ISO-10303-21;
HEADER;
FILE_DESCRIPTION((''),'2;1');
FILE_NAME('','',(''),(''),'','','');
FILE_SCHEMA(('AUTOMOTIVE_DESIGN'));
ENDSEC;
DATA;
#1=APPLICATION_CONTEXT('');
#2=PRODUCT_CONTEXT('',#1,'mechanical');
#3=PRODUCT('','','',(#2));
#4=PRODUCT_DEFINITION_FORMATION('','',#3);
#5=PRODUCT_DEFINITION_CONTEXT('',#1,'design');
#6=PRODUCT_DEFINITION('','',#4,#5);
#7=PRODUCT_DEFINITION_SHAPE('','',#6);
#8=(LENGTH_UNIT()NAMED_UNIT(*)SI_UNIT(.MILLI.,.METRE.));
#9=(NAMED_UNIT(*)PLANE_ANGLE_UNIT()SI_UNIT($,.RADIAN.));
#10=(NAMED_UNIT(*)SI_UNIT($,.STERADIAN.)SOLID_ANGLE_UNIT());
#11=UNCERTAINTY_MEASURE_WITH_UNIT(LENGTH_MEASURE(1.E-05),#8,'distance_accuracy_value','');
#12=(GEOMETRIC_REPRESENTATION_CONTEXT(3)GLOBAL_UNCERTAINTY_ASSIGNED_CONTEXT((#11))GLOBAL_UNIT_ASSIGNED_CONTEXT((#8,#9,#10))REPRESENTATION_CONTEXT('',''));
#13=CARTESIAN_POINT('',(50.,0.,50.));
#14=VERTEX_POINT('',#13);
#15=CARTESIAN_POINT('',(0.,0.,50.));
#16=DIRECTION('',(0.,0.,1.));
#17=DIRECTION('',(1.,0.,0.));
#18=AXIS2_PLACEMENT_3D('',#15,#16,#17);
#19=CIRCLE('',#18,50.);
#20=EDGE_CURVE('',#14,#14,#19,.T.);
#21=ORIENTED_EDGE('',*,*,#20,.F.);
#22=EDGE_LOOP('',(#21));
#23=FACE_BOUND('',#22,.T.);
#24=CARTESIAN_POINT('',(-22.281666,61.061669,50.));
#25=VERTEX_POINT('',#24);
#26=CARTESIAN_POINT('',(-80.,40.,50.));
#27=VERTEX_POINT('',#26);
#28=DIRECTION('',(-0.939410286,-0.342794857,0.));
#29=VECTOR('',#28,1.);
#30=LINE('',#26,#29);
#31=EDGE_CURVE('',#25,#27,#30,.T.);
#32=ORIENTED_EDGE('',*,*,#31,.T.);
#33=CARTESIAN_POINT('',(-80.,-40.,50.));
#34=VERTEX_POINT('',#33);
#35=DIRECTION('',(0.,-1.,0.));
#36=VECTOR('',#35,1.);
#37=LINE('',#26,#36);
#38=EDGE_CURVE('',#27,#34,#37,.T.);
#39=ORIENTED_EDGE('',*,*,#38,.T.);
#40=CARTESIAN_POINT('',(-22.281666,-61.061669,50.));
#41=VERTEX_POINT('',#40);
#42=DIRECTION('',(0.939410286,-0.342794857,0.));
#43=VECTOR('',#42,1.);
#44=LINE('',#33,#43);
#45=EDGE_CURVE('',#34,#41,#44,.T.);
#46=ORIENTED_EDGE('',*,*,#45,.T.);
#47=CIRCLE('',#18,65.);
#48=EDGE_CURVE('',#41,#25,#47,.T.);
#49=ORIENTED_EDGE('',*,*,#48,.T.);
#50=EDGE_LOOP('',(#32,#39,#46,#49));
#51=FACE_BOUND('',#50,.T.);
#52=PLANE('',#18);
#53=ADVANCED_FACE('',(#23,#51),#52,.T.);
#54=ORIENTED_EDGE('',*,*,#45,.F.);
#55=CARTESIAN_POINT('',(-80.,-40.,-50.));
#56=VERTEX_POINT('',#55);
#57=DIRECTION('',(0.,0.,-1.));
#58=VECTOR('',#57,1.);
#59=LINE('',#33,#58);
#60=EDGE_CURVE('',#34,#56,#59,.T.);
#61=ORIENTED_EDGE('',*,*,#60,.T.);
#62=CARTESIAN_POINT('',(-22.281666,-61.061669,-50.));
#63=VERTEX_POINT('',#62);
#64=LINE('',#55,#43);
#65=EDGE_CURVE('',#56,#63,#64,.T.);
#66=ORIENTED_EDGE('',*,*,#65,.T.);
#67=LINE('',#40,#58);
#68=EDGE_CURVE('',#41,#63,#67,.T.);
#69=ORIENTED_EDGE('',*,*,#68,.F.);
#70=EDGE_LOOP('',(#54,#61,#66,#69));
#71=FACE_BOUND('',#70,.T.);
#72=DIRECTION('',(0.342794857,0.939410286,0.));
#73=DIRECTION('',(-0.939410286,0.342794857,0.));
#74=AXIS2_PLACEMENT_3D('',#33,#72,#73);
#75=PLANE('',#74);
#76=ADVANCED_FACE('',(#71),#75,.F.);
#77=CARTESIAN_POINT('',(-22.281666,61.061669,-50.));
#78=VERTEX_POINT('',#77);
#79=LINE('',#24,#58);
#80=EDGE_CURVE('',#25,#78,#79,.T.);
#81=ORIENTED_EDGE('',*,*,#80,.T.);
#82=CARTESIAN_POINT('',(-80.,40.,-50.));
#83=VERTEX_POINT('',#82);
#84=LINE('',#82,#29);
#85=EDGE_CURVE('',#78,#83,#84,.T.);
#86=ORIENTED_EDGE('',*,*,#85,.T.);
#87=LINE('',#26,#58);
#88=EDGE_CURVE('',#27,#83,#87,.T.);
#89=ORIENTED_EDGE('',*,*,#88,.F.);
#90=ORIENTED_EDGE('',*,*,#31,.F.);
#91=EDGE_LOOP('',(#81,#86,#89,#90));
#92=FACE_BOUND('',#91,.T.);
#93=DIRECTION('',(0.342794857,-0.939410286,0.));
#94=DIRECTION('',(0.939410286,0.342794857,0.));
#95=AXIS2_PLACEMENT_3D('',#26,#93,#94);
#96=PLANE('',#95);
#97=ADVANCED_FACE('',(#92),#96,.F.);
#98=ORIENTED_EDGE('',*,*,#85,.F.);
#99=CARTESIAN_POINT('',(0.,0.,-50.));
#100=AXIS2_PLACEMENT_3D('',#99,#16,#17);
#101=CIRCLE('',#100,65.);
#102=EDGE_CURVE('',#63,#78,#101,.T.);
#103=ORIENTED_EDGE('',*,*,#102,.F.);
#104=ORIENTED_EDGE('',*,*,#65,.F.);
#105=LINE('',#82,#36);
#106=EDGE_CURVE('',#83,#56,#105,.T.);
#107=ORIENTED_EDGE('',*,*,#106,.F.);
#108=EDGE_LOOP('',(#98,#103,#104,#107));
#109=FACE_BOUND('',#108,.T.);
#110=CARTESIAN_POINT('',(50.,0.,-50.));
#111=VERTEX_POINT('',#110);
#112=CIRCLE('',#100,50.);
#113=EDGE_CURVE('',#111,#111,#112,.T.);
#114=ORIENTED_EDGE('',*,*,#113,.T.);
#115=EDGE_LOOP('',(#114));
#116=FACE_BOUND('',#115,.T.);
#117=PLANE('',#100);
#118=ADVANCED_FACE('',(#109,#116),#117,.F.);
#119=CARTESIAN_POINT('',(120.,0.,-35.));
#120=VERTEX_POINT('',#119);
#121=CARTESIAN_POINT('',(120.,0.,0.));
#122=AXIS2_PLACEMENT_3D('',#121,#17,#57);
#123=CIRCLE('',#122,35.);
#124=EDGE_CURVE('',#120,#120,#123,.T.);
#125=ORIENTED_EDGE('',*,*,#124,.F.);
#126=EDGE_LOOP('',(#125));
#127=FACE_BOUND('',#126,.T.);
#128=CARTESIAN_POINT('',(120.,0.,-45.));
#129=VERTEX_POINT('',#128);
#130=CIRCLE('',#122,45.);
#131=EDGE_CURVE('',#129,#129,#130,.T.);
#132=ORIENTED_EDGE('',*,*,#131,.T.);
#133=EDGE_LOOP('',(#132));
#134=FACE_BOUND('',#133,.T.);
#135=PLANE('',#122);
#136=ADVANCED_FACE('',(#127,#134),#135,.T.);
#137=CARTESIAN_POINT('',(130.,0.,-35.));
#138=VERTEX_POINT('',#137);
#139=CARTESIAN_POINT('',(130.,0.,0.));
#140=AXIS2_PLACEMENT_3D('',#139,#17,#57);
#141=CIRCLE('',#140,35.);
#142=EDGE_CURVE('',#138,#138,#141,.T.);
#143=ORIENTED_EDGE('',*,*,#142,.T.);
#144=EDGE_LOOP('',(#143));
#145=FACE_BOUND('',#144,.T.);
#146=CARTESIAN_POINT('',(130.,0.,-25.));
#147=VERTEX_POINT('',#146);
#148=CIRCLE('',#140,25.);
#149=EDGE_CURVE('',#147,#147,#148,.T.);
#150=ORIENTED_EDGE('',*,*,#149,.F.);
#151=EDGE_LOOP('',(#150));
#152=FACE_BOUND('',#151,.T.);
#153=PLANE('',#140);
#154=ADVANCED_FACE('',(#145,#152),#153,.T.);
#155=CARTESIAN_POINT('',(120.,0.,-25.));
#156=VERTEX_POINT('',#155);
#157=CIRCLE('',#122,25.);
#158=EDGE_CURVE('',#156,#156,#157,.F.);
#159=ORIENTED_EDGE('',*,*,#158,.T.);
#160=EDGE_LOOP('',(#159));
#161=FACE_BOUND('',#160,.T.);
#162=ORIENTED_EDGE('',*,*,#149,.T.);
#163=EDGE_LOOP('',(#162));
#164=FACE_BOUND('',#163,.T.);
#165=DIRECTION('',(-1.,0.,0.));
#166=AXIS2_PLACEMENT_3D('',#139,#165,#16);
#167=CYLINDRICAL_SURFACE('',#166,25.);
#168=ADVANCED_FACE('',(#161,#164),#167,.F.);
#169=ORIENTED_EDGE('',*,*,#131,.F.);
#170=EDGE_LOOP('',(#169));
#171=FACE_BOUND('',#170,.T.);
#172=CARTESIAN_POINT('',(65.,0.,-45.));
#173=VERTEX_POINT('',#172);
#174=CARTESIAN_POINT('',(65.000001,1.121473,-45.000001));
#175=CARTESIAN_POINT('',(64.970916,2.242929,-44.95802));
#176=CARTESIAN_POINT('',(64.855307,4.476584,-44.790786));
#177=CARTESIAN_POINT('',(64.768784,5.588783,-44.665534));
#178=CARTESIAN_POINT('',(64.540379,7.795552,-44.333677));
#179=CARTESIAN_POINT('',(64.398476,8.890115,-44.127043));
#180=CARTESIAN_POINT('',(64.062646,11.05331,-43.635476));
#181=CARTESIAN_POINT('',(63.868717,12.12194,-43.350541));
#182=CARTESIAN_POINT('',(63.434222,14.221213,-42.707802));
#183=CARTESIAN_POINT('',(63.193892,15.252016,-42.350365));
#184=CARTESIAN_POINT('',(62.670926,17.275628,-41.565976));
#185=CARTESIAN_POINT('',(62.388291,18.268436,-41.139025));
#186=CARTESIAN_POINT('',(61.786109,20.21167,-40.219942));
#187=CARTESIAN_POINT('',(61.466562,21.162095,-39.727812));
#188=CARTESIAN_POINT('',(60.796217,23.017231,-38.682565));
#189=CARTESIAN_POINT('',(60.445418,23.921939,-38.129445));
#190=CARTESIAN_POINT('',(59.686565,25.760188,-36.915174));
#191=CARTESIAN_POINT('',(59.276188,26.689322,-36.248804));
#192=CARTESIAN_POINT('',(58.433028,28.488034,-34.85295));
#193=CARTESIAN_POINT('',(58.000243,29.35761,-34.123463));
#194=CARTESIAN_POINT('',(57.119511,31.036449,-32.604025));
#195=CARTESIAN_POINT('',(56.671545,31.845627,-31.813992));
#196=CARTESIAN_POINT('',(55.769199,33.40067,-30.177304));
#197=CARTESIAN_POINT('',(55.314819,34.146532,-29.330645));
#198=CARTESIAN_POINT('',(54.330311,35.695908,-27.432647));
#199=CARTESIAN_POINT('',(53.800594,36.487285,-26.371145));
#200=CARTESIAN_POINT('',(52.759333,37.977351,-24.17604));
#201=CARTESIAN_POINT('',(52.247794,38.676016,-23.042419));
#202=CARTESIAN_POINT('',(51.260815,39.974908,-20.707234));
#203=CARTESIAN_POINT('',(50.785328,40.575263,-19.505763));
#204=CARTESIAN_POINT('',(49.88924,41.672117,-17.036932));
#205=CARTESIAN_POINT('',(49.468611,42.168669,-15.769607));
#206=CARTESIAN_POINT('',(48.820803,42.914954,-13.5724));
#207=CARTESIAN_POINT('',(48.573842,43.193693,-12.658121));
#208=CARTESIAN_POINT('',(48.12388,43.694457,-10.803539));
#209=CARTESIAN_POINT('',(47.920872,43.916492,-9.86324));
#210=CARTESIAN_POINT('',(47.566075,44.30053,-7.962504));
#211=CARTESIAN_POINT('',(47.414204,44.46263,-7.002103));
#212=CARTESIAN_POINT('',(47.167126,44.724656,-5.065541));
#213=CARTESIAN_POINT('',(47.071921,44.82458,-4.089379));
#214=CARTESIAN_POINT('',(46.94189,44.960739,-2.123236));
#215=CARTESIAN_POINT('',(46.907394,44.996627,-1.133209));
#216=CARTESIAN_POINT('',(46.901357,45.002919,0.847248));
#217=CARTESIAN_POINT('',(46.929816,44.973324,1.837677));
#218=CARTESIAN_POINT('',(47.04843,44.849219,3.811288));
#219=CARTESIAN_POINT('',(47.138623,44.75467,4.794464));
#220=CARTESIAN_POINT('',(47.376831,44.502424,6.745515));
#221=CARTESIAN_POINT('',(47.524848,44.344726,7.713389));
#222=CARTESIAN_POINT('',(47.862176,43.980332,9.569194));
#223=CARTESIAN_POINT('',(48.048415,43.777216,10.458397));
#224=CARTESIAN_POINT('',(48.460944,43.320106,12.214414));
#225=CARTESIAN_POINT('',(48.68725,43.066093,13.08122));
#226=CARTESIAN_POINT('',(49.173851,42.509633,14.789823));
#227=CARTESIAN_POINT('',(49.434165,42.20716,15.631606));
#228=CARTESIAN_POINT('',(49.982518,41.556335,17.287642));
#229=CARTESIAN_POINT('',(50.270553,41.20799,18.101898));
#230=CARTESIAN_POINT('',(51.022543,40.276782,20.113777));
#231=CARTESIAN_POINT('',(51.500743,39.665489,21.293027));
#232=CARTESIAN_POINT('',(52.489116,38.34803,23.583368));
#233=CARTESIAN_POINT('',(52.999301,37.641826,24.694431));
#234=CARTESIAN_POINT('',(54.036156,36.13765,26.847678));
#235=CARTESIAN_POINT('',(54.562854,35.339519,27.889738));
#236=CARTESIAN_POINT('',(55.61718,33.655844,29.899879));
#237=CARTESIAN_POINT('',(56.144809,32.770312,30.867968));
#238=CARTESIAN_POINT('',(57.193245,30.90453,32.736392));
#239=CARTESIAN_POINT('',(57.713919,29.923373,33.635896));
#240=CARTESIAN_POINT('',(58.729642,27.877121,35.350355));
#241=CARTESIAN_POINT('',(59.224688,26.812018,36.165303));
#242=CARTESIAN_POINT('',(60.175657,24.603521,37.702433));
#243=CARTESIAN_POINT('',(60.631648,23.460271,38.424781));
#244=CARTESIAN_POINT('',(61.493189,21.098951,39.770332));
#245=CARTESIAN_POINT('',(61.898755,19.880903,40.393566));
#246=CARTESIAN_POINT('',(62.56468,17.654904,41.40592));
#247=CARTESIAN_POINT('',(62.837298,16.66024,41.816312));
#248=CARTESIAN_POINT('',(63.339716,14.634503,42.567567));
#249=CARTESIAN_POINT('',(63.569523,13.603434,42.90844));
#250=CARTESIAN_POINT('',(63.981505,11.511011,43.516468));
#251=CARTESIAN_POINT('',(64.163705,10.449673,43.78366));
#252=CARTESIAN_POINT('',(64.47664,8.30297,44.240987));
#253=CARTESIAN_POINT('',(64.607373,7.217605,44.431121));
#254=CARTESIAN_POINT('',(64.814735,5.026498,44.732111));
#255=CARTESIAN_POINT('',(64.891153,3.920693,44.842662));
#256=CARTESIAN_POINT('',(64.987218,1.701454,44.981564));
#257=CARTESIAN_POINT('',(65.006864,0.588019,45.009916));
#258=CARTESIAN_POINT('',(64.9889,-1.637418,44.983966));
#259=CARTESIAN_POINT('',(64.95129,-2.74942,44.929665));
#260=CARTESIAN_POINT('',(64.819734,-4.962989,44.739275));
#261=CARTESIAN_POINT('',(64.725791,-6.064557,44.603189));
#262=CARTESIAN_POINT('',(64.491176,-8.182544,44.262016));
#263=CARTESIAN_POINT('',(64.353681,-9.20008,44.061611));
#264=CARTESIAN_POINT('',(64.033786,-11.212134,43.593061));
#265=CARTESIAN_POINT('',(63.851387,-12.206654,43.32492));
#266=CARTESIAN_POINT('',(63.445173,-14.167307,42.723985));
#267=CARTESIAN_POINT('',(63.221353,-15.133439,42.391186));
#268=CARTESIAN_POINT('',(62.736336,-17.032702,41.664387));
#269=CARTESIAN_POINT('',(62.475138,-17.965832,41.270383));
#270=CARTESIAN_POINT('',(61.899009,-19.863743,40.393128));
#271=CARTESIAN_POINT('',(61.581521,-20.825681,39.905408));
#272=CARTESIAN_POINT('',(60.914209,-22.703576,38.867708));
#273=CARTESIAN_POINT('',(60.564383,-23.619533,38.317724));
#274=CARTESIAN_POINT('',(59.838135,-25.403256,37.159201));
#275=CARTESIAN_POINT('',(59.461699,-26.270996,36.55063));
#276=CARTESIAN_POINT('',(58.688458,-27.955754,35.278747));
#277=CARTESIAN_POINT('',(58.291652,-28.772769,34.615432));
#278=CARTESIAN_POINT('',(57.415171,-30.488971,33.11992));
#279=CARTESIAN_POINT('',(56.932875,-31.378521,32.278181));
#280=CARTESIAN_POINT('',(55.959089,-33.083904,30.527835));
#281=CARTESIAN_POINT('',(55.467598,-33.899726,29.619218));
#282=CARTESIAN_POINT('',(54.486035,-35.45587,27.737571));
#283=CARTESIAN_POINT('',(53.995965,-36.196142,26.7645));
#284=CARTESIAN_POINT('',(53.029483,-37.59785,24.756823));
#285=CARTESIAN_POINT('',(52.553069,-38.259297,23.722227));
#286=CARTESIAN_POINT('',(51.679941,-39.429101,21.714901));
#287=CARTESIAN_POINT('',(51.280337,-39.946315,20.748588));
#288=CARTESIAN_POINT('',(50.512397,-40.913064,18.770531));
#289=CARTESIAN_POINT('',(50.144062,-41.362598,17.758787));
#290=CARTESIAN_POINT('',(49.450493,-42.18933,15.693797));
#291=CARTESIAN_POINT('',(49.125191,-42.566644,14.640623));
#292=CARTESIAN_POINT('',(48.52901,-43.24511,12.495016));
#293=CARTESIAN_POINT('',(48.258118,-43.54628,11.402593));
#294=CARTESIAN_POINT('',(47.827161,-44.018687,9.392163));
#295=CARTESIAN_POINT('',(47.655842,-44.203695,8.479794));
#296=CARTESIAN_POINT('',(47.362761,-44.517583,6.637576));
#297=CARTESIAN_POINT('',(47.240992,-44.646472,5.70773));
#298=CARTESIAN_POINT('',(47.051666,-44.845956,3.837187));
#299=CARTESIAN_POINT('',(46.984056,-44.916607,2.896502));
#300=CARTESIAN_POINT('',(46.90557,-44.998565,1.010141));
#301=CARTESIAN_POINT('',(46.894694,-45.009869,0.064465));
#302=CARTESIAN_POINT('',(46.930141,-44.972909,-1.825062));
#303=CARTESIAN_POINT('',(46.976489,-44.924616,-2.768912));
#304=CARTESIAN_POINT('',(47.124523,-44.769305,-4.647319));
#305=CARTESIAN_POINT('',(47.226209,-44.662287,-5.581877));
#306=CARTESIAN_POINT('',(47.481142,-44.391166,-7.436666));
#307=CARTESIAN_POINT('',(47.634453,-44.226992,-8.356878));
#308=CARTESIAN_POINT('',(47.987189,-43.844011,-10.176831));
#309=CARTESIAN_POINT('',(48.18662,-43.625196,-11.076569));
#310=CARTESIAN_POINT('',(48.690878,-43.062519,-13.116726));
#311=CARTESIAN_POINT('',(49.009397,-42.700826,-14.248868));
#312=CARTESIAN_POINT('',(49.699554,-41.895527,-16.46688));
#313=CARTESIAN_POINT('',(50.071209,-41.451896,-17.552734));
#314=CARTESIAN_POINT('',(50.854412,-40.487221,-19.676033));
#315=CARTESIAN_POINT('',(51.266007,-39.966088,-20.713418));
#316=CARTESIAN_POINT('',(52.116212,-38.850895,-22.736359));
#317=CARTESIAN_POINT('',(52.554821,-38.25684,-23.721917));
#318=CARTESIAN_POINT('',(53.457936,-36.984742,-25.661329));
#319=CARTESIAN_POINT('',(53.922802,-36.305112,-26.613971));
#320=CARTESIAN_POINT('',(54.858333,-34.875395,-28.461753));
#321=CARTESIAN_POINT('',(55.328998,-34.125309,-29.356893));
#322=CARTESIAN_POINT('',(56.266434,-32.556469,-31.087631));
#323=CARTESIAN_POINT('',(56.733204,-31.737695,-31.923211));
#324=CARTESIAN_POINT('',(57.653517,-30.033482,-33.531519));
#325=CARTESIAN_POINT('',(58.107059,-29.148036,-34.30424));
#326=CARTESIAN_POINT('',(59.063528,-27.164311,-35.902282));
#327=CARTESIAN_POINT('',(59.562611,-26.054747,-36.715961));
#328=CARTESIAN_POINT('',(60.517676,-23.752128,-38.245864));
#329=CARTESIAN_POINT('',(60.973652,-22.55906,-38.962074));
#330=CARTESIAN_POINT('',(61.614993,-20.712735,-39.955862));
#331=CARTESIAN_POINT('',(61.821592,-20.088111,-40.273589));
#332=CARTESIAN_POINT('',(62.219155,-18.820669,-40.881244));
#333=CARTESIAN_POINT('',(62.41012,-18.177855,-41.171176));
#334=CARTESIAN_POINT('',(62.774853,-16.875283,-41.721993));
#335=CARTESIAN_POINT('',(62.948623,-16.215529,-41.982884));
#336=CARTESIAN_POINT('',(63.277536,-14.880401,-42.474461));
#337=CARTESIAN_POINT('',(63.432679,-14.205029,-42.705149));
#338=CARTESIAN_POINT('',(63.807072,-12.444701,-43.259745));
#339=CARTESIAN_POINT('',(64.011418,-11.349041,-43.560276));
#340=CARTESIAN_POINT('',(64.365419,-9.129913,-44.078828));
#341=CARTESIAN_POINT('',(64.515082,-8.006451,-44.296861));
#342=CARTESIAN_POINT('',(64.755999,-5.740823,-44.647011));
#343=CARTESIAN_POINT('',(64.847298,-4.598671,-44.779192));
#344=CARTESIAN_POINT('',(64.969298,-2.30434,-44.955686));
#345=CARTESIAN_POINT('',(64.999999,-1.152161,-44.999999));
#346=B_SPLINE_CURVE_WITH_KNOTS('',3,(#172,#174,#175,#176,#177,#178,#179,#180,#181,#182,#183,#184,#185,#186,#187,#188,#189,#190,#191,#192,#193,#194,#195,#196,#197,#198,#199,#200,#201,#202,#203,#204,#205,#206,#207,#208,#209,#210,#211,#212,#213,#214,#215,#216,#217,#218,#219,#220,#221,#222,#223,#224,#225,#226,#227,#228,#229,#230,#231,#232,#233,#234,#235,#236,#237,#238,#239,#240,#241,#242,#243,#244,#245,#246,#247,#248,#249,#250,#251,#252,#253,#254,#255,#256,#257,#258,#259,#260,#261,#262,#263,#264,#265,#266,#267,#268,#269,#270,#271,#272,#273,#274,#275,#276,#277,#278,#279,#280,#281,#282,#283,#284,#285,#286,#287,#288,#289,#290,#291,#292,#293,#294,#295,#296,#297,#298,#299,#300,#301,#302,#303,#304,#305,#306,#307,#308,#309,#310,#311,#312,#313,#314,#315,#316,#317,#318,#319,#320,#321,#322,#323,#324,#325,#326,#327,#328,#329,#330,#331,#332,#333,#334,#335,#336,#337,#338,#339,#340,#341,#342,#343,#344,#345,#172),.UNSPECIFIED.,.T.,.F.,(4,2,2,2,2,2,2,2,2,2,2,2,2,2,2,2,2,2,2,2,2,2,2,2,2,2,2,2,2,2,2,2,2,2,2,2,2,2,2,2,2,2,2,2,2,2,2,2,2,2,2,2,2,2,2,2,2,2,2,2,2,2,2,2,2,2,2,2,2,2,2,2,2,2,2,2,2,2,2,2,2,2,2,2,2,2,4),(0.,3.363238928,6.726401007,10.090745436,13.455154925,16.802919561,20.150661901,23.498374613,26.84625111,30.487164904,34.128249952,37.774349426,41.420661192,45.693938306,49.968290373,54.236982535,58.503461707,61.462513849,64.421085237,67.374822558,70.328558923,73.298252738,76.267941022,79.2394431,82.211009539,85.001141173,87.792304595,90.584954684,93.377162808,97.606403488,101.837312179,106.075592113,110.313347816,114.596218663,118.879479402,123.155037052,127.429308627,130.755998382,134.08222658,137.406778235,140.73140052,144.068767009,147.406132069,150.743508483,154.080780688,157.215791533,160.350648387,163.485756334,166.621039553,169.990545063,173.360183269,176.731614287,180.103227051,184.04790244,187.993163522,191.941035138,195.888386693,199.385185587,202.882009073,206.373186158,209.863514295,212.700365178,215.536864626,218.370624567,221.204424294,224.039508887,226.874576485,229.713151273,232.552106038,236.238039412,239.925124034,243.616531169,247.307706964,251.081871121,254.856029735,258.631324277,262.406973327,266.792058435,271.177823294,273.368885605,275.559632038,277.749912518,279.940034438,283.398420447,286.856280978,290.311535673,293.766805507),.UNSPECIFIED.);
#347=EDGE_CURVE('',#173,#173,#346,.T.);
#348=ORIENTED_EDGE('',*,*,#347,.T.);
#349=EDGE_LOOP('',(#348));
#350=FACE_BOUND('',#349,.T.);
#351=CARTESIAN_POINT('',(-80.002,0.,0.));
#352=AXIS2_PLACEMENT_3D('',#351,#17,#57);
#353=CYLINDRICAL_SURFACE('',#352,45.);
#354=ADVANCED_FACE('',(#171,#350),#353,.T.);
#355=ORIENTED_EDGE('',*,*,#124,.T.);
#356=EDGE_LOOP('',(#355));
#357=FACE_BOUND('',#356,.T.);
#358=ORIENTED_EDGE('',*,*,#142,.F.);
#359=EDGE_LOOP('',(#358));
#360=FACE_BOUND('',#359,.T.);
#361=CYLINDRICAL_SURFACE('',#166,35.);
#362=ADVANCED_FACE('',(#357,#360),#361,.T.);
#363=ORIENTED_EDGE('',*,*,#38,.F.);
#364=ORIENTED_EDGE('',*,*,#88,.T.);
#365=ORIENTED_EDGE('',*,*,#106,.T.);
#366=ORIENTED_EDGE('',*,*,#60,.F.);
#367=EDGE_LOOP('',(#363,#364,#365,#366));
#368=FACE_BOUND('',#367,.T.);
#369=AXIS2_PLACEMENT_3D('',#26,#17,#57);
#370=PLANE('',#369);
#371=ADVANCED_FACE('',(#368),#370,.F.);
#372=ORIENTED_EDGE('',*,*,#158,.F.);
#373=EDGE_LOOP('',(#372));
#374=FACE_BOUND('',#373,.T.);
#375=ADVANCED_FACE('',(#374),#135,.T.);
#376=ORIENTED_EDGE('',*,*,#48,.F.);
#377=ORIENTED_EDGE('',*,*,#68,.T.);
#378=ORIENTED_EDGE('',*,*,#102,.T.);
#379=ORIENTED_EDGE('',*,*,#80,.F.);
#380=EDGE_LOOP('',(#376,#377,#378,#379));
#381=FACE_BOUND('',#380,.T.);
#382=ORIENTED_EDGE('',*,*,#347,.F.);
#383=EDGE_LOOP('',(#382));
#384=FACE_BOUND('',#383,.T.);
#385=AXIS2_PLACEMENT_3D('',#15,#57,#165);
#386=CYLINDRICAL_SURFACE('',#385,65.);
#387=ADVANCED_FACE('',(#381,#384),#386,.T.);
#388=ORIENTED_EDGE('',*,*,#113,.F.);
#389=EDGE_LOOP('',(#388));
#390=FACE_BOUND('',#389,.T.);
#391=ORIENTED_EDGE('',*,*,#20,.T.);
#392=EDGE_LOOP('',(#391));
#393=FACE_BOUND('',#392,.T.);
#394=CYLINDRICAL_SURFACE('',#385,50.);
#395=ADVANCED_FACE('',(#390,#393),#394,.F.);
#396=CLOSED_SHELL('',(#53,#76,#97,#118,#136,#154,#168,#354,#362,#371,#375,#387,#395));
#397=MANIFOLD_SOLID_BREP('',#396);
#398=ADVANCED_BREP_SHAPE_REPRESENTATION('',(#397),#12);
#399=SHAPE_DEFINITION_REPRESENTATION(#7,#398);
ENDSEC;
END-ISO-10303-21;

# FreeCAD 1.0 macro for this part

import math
import FreeCAD as App
import Part
import Sketcher
Q = App.Units.Quantity

doc = App.newDocument("Part")
body = doc.addObject("PartDesign::Body", "Body")

sketch1 = doc.addObject("Sketcher::SketchObject", "Sketch")
body.addObject(sketch1)
sketch1.AttachmentSupport = (doc.XY_Plane, [""])
sketch1.MapMode = "FlatFace"
sketch1.addGeometry([
    Part.LineSegment(App.Vector(-80, 40, 0), App.Vector(-80, -40, 0)),
    Part.LineSegment(App.Vector(-80, -40, 0), App.Vector(-22, -61, 0)),
    Part.ArcOfCircle(Part.Circle(App.Vector(0, 0, 0), App.Vector(0, 0, 1), 65), math.radians(-110), math.radians(110)),
    Part.LineSegment(App.Vector(-22, 61, 0), App.Vector(-80, 40, 0)),
    Part.Circle(App.Vector(0, 0, 0), App.Vector(0, 0, 1), 50),
], False)
sketch1.addConstraint([
    Sketcher.Constraint("Coincident", 0, 2, 1, 1),
    Sketcher.Constraint("Tangent", 1, 2, 2, 1),
    Sketcher.Constraint("Tangent", 2, 2, 3, 1),
    Sketcher.Constraint("Coincident", 3, 2, 0, 1),
    Sketcher.Constraint("Vertical", 0),
    Sketcher.Constraint("Coincident", 2, 3, -1, 1),
    Sketcher.Constraint("Coincident", 4, 3, -1, 1),
    Sketcher.Constraint("Vertical", 1, 2, 2, 2),
    Sketcher.Constraint("Diameter", 4, Q("100 mm")),
    Sketcher.Constraint("Radius", 2, Q("65 mm")),
    Sketcher.Constraint("DistanceY", 0, 2, 0, 1, Q("80 mm")),
    Sketcher.Constraint("DistanceX", 0, 2, -1, 1, Q("80 mm")),
])
pad1 = doc.addObject("PartDesign::Pad", "Pad")
body.addObject(pad1)
pad1.Profile = sketch1
pad1.Length = 100
pad1.Midplane = True

sketch2 = doc.addObject("Sketcher::SketchObject", "Sketch001")
body.addObject(sketch2)
sketch2.AttachmentSupport = (doc.YZ_Plane, [""])
sketch2.MapMode = "FlatFace"
sketch2.AttachmentOffset = App.Placement(App.Vector(0, 0, 120), App.Rotation())
sketch2.addGeometry(Part.Circle(App.Vector(0, 0, 0), App.Vector(0, 0, 1), 45), False)
sketch2.addConstraint([
    Sketcher.Constraint("Coincident", 0, 3, -1, 1),
    Sketcher.Constraint("Diameter", 0, Q("90 mm")),
])
pad2 = doc.addObject("PartDesign::Pad", "Pad001")
body.addObject(pad2)
pad2.Profile = sketch2
pad2.Type = "UpToFirst"
pad2.Reversed = True

sketch3 = doc.addObject("Sketcher::SketchObject", "Sketch002")
body.addObject(sketch3)
sketch3.AttachmentSupport = (doc.YZ_Plane, [""])
sketch3.MapMode = "FlatFace"
sketch3.AttachmentOffset = App.Placement(App.Vector(0, 0, 120), App.Rotation())
sketch3.addGeometry([
    Part.Circle(App.Vector(0, 0, 0), App.Vector(0, 0, 1), 35),
    Part.Circle(App.Vector(0, 0, 0), App.Vector(0, 0, 1), 25),
], False)
sketch3.addConstraint([
    Sketcher.Constraint("Coincident", 0, 3, -1, 1),
    Sketcher.Constraint("Coincident", 1, 3, -1, 1),
    Sketcher.Constraint("Diameter", 0, Q("70 mm")),
    Sketcher.Constraint("Diameter", 1, Q("50 mm")),
])
pad3 = doc.addObject("PartDesign::Pad", "Pad002")
body.addObject(pad3)
pad3.Profile = sketch3
pad3.Length = 10

doc.recompute()
